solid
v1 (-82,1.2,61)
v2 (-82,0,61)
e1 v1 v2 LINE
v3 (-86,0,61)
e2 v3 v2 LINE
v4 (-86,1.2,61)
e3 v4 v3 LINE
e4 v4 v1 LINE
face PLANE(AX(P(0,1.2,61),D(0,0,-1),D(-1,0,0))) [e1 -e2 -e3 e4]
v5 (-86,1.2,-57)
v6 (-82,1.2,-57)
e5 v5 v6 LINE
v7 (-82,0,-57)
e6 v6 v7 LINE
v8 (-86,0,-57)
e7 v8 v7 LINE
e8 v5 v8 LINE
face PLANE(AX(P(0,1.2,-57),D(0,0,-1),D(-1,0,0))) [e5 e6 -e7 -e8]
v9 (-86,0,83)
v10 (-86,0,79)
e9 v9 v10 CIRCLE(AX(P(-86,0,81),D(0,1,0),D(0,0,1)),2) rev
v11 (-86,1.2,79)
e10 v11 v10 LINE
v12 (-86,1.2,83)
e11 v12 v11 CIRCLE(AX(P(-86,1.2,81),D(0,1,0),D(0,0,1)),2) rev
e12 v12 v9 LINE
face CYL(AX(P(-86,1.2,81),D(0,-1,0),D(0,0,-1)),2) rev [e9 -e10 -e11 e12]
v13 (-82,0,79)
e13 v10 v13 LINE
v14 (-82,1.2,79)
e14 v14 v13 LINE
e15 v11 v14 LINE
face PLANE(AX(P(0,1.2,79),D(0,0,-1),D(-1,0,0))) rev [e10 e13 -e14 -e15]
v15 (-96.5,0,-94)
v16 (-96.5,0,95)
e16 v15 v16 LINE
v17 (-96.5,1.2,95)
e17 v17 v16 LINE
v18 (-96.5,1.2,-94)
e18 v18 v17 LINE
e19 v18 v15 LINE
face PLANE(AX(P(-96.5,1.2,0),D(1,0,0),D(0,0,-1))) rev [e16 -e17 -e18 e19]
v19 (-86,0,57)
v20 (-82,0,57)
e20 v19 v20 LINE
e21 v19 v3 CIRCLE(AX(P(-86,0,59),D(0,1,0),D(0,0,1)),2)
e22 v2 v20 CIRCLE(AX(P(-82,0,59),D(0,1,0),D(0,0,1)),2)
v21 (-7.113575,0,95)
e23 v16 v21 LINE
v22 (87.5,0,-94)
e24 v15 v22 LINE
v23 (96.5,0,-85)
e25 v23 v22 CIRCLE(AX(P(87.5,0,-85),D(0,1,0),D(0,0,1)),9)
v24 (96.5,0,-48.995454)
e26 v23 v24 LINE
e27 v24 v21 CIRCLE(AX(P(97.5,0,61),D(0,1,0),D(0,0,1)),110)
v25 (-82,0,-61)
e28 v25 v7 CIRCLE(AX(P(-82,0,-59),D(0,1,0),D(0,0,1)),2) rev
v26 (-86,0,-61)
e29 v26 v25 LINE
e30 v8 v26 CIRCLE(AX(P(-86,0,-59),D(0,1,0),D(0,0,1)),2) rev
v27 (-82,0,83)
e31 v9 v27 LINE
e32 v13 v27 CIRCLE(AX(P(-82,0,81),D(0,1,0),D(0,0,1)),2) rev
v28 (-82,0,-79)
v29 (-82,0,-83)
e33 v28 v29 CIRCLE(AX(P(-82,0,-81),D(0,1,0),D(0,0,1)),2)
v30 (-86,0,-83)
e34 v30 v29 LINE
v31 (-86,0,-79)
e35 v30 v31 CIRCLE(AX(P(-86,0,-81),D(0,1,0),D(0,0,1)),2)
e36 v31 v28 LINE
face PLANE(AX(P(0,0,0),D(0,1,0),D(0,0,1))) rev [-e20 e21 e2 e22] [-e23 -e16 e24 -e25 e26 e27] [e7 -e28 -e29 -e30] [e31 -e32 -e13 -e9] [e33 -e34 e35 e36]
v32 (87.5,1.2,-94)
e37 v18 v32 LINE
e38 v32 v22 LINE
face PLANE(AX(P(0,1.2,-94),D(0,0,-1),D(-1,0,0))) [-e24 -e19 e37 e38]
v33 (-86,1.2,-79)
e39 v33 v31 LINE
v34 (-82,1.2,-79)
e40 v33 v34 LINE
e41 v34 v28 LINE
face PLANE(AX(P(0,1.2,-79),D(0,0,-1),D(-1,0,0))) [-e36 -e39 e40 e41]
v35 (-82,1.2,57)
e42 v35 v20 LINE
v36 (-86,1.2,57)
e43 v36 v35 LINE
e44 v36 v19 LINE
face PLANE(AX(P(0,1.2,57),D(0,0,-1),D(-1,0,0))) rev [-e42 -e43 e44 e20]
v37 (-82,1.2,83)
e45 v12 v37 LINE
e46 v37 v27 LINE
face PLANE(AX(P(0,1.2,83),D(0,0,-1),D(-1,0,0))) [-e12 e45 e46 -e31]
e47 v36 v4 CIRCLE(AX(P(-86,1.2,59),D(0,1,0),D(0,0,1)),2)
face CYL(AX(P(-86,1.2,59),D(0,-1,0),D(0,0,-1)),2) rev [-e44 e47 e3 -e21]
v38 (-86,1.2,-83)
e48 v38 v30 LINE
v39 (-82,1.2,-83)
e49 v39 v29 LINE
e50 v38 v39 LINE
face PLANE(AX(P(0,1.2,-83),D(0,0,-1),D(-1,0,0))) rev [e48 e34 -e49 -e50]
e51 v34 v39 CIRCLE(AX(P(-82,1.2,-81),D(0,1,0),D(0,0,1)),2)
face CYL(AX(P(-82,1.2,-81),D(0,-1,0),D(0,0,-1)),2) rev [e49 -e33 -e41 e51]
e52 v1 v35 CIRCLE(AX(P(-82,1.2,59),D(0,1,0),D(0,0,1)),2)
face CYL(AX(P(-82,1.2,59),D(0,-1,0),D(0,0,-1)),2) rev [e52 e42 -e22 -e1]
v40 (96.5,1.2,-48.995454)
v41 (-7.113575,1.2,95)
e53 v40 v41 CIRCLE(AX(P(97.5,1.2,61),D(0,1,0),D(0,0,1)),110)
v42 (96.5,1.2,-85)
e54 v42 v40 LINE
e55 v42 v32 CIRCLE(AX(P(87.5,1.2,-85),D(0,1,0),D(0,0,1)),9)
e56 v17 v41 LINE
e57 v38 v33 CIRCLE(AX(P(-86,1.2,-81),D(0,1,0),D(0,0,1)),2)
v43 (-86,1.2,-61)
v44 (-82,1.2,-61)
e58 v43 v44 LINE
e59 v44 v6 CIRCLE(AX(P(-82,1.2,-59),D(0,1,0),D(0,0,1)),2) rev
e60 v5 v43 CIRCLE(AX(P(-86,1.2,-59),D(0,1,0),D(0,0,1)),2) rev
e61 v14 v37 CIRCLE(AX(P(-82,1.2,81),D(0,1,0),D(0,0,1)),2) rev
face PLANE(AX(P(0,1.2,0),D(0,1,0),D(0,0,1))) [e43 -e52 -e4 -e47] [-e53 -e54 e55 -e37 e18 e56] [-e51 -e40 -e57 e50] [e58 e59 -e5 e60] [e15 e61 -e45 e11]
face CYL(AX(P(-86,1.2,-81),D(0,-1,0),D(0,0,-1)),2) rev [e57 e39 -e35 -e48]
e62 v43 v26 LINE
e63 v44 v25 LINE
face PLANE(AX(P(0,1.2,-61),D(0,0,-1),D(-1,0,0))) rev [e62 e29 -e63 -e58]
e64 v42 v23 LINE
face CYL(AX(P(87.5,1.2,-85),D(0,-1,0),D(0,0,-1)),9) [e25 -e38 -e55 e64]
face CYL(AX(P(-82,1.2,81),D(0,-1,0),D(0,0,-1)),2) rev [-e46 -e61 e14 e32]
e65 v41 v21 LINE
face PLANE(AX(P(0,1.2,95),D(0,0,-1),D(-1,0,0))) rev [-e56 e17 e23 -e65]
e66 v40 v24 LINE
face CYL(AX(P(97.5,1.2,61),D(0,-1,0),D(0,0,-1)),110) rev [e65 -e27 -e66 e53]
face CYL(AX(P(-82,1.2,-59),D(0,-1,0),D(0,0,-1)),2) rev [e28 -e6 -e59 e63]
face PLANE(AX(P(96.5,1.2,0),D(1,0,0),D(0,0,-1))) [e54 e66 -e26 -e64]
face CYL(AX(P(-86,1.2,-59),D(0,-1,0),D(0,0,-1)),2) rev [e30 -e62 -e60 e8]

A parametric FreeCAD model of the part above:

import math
import FreeCAD as App
import Part
import Sketcher
Q = App.Units.Quantity

doc = App.newDocument("Part")
body = doc.addObject("PartDesign::Body", "Body")

# Sketch on XZ plane
sketch1 = doc.addObject("Sketcher::SketchObject", "Sketch")
body.addObject(sketch1)
sketch1.AttachmentSupport = (doc.XZ_Plane, [""])
sketch1.MapMode = "FlatFace"
sketch1.addGeometry([
    Part.LineSegment(App.Vector(96.5, -48.995454, 0), App.Vector(96.5, -85, 0)),  # 0
    Part.ArcOfCircle(Part.Circle(App.Vector(87.5, -85, 0), App.Vector(0, 0, 1), 9), math.radians(-90), math.radians(0)),  # 1
    Part.LineSegment(App.Vector(87.5, -94, 0), App.Vector(-96.5, -94, 0)),  # 2
    Part.LineSegment(App.Vector(-96.5, -94, 0), App.Vector(-96.5, 95, 0)),  # 3
    Part.LineSegment(App.Vector(-96.5, 95, 0), App.Vector(-7.113575, 95, 0)),  # 4
    Part.ArcOfCircle(Part.Circle(App.Vector(97.5, 61, 0), App.Vector(0, 0, 1), 110), math.radians(161.995547), math.radians(269.479122)),  # 5
    Part.LineSegment(App.Vector(-82, 83, 0), App.Vector(-86, 83, 0)),  # 6
    Part.ArcOfCircle(Part.Circle(App.Vector(-86, 81, 0), App.Vector(0, 0, 1), 2), math.radians(90), math.radians(270)),  # 7
    Part.LineSegment(App.Vector(-86, 79, 0), App.Vector(-82, 79, 0)),  # 8
    Part.ArcOfCircle(Part.Circle(App.Vector(-82, 81, 0), App.Vector(0, 0, 1), 2), math.radians(-90), math.radians(0)),  # 9
    Part.ArcOfCircle(Part.Circle(App.Vector(-82, 81, 0), App.Vector(0, 0, 1), 2), math.radians(0), math.radians(90)),  # 10
    Part.LineSegment(App.Vector(-82, 61, 0), App.Vector(-86, 61, 0)),  # 11
    Part.ArcOfCircle(Part.Circle(App.Vector(-86, 59, 0), App.Vector(0, 0, 1), 2), math.radians(90), math.radians(270)),  # 12
    Part.LineSegment(App.Vector(-86, 57, 0), App.Vector(-82, 57, 0)),  # 13
    Part.ArcOfCircle(Part.Circle(App.Vector(-82, 59, 0), App.Vector(0, 0, 1), 2), math.radians(-90), math.radians(0)),  # 14
    Part.ArcOfCircle(Part.Circle(App.Vector(-82, 59, 0), App.Vector(0, 0, 1), 2), math.radians(0), math.radians(90)),  # 15
    Part.LineSegment(App.Vector(-82, -57, 0), App.Vector(-86, -57, 0)),  # 16
    Part.ArcOfCircle(Part.Circle(App.Vector(-86, -59, 0), App.Vector(0, 0, 1), 2), math.radians(90), math.radians(270)),  # 17
    Part.LineSegment(App.Vector(-86, -61, 0), App.Vector(-82, -61, 0)),  # 18
    Part.ArcOfCircle(Part.Circle(App.Vector(-82, -59, 0), App.Vector(0, 0, 1), 2), math.radians(-90), math.radians(0)),  # 19
    Part.ArcOfCircle(Part.Circle(App.Vector(-82, -59, 0), App.Vector(0, 0, 1), 2), math.radians(0), math.radians(90)),  # 20
    Part.LineSegment(App.Vector(-82, -79, 0), App.Vector(-86, -79, 0)),  # 21
    Part.ArcOfCircle(Part.Circle(App.Vector(-86, -81, 0), App.Vector(0, 0, 1), 2), math.radians(90), math.radians(270)),  # 22
    Part.LineSegment(App.Vector(-86, -83, 0), App.Vector(-82, -83, 0)),  # 23
    Part.ArcOfCircle(Part.Circle(App.Vector(-82, -81, 0), App.Vector(0, 0, 1), 2), math.radians(-90), math.radians(0)),  # 24
    Part.ArcOfCircle(Part.Circle(App.Vector(-82, -81, 0), App.Vector(0, 0, 1), 2), math.radians(0), math.radians(90)),  # 25
], False)
sketch1.addConstraint([
    Sketcher.Constraint("Tangent", 0, 2, 1, 2),
    Sketcher.Constraint("Tangent", 1, 1, 2, 1),
    Sketcher.Constraint("Coincident", 2, 2, 3, 1),
    Sketcher.Constraint("Coincident", 3, 2, 4, 1),
    Sketcher.Constraint("Coincident", 4, 2, 5, 1),
    Sketcher.Constraint("Coincident", 5, 2, 0, 1),
    Sketcher.Constraint("Tangent", 6, 2, 7, 1),
    Sketcher.Constraint("Tangent", 7, 2, 8, 1),
    Sketcher.Constraint("Tangent", 8, 2, 9, 1),
    Sketcher.Constraint("Tangent", 9, 2, 10, 1),
    Sketcher.Constraint("Tangent", 10, 2, 6, 1),
    Sketcher.Constraint("Tangent", 11, 2, 12, 1),
    Sketcher.Constraint("Tangent", 12, 2, 13, 1),
    Sketcher.Constraint("Tangent", 13, 2, 14, 1),
    Sketcher.Constraint("Tangent", 14, 2, 15, 1),
    Sketcher.Constraint("Tangent", 15, 2, 11, 1),
    Sketcher.Constraint("Tangent", 16, 2, 17, 1),
    Sketcher.Constraint("Tangent", 17, 2, 18, 1),
    Sketcher.Constraint("Tangent", 18, 2, 19, 1),
    Sketcher.Constraint("Tangent", 19, 2, 20, 1),
    Sketcher.Constraint("Tangent", 20, 2, 16, 1),
    Sketcher.Constraint("Tangent", 21, 2, 22, 1),
    Sketcher.Constraint("Tangent", 22, 2, 23, 1),
    Sketcher.Constraint("Tangent", 23, 2, 24, 1),
    Sketcher.Constraint("Tangent", 24, 2, 25, 1),
    Sketcher.Constraint("Tangent", 25, 2, 21, 1),
    Sketcher.Constraint("Vertical", 0),
    Sketcher.Constraint("Horizontal", 2),
    Sketcher.Constraint("Vertical", 3),
    Sketcher.Constraint("Horizontal", 4),
    Sketcher.Constraint("Horizontal", 6),
    Sketcher.Constraint("Horizontal", 8),
    Sketcher.Constraint("Horizontal", 11),
    Sketcher.Constraint("Horizontal", 13),
    Sketcher.Constraint("Horizontal", 16),
    Sketcher.Constraint("Horizontal", 18),
    Sketcher.Constraint("Horizontal", 21),
    Sketcher.Constraint("Horizontal", 23),
    Sketcher.Constraint("Equal", 7, 9),
    Sketcher.Constraint("Equal", 10, 12),
    Sketcher.Constraint("Equal", 12, 14),
    Sketcher.Constraint("Equal", 15, 17),
    Sketcher.Constraint("Equal", 17, 19),
    Sketcher.Constraint("Equal", 20, 22),
    Sketcher.Constraint("Equal", 22, 24),
    Sketcher.Constraint("Symmetric", 12, 3, 17, 3, -1),
    Sketcher.Constraint("Symmetric", 7, 3, 22, 3, -1),
    Sketcher.Constraint("Symmetric", 14, 2, 19, 2, -1),
    Sketcher.Constraint("Symmetric", 9, 2, 24, 2, -1),
    Sketcher.Constraint("Horizontal", 10, 3, 9, 2),
    Sketcher.Constraint("Horizontal", 5, 3, 11, 2),
    Sketcher.Constraint("Horizontal", 15, 3, 14, 2),
    Sketcher.Constraint("Vertical", 7, 3, 12, 3),
    Sketcher.Constraint("Vertical", 10, 3, 14, 3),
    Sketcher.Constraint("Radius", 1, Q("9 mm")),
    Sketcher.Constraint("Radius", 5, Q("110 mm")),
    Sketcher.Constraint("Radius", 7, Q("2 mm")),
    Sketcher.Constraint("DistanceX", 2, 2, 2, 1, Q("184 mm")),
    Sketcher.Constraint("DistanceX", 6, 2, 6, 1, Q("4 mm")),
    Sketcher.Constraint("DistanceY", 3, 1, 3, 2, Q("189 mm")),
    Sketcher.Constraint("DistanceY", 1, 3, -1, 1, Q("85 mm")),
    Sketcher.Constraint("DistanceY", -1, 1, 5, 3, Q("61 mm")),
    Sketcher.Constraint("DistanceX", 7, 3, -1, 1, Q("86 mm")),
    Sketcher.Constraint("DistanceY", -1, 1, 7, 3, Q("81 mm")),
    Sketcher.Constraint("DistanceX", 1, 3, 5, 3, Q("10 mm")),
    Sketcher.Constraint("DistanceX", -1, 1, 1, 3, Q("87.5 mm")),
])
pad1 = doc.addObject("PartDesign::Pad", "Pad")
body.addObject(pad1)
pad1.Profile = sketch1
pad1.Length = 1.2
pad1.Reversed = True

doc.recompute()
